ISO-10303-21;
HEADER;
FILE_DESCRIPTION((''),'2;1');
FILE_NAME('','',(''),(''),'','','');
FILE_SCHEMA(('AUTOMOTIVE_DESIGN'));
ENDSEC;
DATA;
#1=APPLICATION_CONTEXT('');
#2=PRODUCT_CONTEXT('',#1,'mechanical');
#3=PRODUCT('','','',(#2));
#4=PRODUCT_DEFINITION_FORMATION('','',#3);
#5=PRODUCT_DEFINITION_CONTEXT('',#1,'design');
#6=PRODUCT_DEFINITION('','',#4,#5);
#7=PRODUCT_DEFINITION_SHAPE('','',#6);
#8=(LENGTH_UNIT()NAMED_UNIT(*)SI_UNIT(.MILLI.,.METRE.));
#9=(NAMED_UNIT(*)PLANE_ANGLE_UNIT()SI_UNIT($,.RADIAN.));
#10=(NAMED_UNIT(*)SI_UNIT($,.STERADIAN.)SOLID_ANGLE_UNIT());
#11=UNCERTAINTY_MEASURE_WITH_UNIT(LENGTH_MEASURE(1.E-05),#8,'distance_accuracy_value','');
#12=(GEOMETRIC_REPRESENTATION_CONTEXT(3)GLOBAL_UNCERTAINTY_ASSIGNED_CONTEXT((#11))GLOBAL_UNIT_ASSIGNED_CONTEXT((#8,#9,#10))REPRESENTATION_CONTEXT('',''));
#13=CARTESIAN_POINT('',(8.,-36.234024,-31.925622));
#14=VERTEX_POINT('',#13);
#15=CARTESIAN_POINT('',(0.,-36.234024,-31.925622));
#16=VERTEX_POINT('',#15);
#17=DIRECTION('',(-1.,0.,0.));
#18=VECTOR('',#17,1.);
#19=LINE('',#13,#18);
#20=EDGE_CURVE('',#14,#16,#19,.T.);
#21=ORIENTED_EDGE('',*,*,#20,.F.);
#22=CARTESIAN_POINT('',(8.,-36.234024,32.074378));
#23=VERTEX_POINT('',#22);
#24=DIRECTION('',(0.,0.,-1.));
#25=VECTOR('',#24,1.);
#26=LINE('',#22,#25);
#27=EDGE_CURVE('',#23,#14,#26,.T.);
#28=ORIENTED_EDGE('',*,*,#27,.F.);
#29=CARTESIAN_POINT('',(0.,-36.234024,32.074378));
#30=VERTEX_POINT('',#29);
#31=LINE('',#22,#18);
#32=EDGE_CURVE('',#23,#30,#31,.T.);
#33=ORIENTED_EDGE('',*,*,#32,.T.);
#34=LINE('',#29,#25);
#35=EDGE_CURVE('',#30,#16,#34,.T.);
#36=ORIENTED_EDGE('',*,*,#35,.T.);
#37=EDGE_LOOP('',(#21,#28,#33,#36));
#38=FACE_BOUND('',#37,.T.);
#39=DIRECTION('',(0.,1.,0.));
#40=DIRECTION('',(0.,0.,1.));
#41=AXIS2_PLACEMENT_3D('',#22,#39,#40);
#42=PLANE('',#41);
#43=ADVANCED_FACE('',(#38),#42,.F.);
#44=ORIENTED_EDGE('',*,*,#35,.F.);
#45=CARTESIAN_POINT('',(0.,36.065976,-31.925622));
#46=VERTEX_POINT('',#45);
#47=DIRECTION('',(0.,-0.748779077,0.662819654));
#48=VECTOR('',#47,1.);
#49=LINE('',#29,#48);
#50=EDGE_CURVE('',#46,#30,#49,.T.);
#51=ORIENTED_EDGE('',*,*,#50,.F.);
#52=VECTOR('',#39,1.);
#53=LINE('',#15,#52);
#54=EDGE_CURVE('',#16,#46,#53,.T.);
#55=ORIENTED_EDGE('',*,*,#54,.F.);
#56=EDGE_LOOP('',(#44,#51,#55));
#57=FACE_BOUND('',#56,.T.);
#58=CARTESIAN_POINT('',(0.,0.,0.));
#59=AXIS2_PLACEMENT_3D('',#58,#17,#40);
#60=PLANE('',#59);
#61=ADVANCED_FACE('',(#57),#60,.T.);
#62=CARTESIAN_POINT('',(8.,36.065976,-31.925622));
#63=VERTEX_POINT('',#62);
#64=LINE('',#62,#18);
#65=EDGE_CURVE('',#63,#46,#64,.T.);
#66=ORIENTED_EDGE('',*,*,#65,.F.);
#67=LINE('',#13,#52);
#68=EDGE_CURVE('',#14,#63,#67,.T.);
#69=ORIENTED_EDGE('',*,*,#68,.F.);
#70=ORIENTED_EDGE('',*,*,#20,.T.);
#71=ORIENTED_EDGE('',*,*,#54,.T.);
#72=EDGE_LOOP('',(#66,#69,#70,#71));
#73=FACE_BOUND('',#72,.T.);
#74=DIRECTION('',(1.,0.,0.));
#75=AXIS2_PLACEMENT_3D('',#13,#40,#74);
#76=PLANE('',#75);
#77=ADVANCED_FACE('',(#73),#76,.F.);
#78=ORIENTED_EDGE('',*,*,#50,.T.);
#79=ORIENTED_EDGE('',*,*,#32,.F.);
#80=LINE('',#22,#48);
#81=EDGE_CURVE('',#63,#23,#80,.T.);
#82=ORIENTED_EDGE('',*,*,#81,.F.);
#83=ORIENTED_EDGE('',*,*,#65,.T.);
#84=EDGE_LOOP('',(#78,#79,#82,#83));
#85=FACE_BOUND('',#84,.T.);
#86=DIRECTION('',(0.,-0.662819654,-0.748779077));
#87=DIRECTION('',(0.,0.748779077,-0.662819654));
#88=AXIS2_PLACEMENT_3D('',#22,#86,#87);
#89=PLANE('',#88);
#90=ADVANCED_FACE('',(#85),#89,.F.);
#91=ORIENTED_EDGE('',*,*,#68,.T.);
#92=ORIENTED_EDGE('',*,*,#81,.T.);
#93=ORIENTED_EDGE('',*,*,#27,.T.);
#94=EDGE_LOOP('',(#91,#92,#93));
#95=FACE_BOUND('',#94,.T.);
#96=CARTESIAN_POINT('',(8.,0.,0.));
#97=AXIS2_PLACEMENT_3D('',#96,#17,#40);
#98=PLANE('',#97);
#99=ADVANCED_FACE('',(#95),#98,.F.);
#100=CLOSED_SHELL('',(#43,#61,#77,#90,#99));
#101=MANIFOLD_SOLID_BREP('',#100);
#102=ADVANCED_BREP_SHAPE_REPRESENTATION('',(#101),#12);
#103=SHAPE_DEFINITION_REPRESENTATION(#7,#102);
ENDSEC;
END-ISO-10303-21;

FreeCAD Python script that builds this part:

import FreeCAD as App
import Part
import Sketcher
from FreeCAD import Vector
Q = App.Units.Quantity


def add_polygon(sketch, points):
    """Adds a closed chain of lines whose ends are joined by coincident constraints."""
    first, n = sketch.GeometryCount, len(points)
    for a, b in zip(points, points[1:] + points[:1]):
        sketch.addGeometry(Part.LineSegment(App.Vector(*a, 0), App.Vector(*b, 0)), False)
    for i in range(n):
        sketch.addConstraint(Sketcher.Constraint("Coincident", first + i, 2, first + (i + 1) % n, 1))

doc = App.newDocument("Part")
body = doc.addObject("PartDesign::Body", "Body")

# Sketch on YZ plane
sketch1 = body.newObject("Sketcher::SketchObject", "Sketch")
sketch1.AttachmentSupport = (doc.getObject("YZ_Plane"), [""])
sketch1.MapMode = "FlatFace"
add_polygon(sketch1, [(-36, 32), (-36, -32), (36, -32)])  # lines 0-2
sketch1.addConstraint([
    Sketcher.Constraint("Vertical", 0),
    Sketcher.Constraint("Horizontal", 1),
    Sketcher.Constraint("DistanceY", 0, 2, 0, 1, Q("64 mm")),
    Sketcher.Constraint("DistanceX", 1, 1, 1, 2, Q("72.3 mm")),
    Sketcher.Constraint("DistanceX", 0, 2, -1, 1, Q("36.234024 mm")),
    Sketcher.Constraint("DistanceY", 0, 2, -1, 1, Q("31.925622 mm")),
])
pad1 = body.newObject("PartDesign::Pad", "Pad")
pad1.Profile = sketch1
pad1.Length = 8

doc.recompute()
